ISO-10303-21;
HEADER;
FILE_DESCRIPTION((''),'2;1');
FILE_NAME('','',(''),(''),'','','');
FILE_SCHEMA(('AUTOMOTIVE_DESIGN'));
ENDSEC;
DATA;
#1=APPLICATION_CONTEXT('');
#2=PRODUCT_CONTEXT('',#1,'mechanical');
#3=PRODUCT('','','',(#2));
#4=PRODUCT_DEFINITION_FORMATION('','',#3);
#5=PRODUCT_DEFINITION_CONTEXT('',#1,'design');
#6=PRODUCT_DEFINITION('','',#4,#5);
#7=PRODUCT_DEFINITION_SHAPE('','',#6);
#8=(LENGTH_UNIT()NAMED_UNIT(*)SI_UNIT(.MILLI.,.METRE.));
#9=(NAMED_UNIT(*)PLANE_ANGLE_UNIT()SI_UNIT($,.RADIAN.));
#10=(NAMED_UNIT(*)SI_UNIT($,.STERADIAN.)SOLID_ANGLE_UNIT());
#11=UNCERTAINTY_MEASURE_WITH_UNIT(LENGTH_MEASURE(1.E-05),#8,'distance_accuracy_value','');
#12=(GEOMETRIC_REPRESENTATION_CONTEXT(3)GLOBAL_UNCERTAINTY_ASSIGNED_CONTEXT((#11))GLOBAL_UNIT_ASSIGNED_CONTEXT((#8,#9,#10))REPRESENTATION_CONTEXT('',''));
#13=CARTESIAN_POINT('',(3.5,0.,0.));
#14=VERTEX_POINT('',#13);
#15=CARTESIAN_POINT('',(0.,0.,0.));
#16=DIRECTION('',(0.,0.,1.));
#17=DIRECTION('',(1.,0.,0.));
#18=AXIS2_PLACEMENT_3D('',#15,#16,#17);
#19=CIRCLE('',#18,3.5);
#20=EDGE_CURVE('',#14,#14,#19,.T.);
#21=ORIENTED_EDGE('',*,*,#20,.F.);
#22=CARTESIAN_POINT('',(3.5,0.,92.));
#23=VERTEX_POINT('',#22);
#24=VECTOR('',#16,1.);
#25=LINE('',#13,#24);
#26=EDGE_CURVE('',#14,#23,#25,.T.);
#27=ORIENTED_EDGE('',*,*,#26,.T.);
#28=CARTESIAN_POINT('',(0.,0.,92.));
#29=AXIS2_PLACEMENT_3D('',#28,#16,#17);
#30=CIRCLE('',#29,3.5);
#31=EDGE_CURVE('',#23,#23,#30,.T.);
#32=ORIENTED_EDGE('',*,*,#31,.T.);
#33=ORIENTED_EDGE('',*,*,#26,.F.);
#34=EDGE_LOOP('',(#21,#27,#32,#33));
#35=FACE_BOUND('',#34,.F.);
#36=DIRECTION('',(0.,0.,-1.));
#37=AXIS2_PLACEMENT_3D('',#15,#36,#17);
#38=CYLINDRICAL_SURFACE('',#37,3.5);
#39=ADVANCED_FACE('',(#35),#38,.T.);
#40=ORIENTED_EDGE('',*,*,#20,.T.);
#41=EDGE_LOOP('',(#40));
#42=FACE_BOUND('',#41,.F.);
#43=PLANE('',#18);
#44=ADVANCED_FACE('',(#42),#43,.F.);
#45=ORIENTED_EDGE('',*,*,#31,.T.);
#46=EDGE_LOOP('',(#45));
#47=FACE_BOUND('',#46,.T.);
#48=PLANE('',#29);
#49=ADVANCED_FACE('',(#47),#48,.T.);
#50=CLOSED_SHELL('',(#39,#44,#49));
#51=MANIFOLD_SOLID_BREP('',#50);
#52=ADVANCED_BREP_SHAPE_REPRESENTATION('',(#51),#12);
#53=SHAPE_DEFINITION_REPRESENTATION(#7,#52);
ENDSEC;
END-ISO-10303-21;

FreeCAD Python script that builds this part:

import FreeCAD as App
import Part
import Sketcher

V = App.Vector

doc = App.newDocument("Part")
params = doc.addObject("Spreadsheet::Sheet", "Params")
for row, (alias, value) in enumerate([
    ("sketch1_diameter", "7 mm"),
    ("pad1_length", "92 mm"),
], start=1):
    params.set(f"A{row}", alias)
    params.set(f"B{row}", "=" + value)
    params.setAlias(f"B{row}", alias)

body = doc.addObject("PartDesign::Body", "Body")

# Sketch on XY plane
sketch1 = body.newObject("Sketcher::SketchObject", "Sketch")
sketch1.AttachmentSupport = (doc.getObject("XY_Plane"), [""])
sketch1.MapMode = "FlatFace"
sketch1.addGeometry(Part.Circle(V(0, 0, 0), V(0, 0, 1), 3.5), False)
sketch1.addConstraint([
    Sketcher.Constraint("Coincident", 0, 3, -1, 1),
    Sketcher.Constraint("Diameter", 0, 7.0),
])
sketch1.setExpression("Constraints[1]", "Params.sketch1_diameter")
pad1 = body.newObject("PartDesign::Pad", "Pad")
pad1.Profile = sketch1
pad1.setExpression("Length", "Params.pad1_length")

doc.recompute()
